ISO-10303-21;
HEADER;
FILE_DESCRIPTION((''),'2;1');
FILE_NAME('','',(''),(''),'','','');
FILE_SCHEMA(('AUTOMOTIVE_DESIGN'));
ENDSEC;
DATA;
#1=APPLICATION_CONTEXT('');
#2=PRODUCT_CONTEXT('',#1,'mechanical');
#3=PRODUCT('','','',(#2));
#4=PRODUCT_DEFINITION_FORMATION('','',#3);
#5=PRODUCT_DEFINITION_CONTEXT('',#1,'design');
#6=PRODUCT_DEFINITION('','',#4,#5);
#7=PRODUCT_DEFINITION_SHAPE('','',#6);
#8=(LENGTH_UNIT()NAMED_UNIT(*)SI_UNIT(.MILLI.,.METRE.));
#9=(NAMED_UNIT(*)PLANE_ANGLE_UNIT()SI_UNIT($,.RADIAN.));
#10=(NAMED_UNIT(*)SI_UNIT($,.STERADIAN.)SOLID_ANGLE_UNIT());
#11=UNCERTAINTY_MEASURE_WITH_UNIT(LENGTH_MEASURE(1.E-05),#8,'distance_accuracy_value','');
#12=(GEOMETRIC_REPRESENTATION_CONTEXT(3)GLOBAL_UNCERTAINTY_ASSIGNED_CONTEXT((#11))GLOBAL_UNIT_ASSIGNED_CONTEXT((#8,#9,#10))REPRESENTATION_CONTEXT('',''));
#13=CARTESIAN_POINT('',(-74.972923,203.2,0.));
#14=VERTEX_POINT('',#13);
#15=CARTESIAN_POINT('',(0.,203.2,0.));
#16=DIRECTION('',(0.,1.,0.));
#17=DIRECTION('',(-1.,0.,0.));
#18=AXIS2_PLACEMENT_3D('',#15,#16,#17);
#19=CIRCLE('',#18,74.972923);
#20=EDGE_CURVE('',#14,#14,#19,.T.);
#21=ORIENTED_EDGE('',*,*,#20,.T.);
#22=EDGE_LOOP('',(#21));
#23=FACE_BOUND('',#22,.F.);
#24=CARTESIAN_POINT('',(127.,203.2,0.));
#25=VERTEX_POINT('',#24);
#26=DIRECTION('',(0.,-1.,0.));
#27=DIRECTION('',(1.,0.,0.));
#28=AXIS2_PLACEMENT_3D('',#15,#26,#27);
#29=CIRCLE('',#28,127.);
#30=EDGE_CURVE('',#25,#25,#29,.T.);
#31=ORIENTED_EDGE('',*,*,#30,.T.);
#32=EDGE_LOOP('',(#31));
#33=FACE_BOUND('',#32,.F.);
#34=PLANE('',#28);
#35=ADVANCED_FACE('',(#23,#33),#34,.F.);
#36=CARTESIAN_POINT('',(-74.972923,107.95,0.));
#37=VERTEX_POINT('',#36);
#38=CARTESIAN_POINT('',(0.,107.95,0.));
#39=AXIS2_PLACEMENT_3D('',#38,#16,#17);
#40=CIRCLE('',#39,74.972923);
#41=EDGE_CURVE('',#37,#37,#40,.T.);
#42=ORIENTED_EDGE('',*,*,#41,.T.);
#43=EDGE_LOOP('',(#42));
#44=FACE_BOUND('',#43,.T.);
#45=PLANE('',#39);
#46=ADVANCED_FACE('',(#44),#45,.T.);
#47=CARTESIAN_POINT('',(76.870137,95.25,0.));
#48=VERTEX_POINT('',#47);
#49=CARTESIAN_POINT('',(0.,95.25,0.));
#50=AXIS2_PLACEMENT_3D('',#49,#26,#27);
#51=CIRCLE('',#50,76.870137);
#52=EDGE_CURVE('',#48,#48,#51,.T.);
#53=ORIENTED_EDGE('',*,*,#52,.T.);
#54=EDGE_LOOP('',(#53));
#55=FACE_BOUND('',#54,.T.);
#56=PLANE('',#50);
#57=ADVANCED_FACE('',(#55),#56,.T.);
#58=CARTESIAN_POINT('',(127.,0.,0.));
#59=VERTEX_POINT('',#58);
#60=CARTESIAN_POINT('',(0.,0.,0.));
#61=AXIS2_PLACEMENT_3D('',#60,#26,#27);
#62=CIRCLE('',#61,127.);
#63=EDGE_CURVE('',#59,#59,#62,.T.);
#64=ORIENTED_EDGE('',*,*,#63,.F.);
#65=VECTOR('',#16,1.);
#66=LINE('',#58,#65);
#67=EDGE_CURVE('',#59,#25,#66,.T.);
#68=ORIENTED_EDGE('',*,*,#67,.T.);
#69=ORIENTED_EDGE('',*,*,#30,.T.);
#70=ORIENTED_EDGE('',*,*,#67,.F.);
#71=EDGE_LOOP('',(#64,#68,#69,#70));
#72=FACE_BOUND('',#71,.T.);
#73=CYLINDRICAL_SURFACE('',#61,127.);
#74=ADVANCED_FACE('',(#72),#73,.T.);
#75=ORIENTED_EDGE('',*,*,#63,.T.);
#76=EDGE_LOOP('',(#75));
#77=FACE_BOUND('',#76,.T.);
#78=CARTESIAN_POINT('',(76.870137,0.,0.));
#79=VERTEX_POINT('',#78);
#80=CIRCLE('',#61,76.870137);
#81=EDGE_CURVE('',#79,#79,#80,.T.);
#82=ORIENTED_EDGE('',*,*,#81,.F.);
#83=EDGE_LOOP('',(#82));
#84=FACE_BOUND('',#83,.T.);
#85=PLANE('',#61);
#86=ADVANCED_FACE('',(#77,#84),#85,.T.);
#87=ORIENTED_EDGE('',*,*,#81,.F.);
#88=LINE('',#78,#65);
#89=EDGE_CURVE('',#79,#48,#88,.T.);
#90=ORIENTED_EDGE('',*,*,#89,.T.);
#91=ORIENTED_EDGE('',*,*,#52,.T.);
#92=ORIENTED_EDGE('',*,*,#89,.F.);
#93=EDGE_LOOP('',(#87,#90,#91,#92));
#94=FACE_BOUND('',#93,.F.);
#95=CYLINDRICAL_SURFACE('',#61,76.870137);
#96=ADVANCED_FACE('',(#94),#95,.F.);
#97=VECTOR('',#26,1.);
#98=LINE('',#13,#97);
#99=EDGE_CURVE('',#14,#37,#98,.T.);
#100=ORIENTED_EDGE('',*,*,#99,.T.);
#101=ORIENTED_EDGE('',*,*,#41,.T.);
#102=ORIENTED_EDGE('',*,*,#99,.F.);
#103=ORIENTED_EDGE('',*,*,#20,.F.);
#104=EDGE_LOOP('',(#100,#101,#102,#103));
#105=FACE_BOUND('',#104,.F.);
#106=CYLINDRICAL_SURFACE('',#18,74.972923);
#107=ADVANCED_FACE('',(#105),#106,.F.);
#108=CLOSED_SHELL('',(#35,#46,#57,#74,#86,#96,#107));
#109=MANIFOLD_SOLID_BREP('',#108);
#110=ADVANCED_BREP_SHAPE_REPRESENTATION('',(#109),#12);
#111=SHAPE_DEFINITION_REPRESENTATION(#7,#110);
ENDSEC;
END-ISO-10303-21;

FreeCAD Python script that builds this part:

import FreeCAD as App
import Part
import Sketcher

V = App.Vector
Q = App.Units.Quantity

doc = App.newDocument("Part")
params = doc.addObject("Spreadsheet::Sheet", "Params")
for row, (alias, value) in enumerate([
    ("sketch1_diameter", "10 in"),
    ("pad1_length", "8 in"),
    ("pocket1_length", "3.75 in"),
    ("pocket2_length", "3.75 in"),
], start=1):
    params.set(f"A{row}", alias)
    params.set(f"B{row}", "=" + value)
    params.setAlias(f"B{row}", alias)

body = doc.addObject("PartDesign::Body", "Body")

sketch1 = body.newObject("Sketcher::SketchObject", "Sketch")
sketch1.AttachmentSupport = (doc.getObject("XZ_Plane"), [""])
sketch1.MapMode = "FlatFace"
sketch1.addGeometry(Part.Circle(V(0, 0, 0), V(0, 0, 1), 127), False)
sketch1.addConstraint([
    Sketcher.Constraint("Coincident", 0, 3, -1, 1),
    Sketcher.Constraint("Diameter", 0, Q("10 in")),
])
sketch1.setExpression("Constraints[1]", "Params.sketch1_diameter")
pad1 = body.newObject("PartDesign::Pad", "Pad")
pad1.Profile = sketch1
pad1.setExpression("Length", "Params.pad1_length")
pad1.Reversed = True

sketch2 = body.newObject("Sketcher::SketchObject", "Sketch001")
sketch2.AttachmentSupport = (doc.getObject("XZ_Plane"), [""])
sketch2.MapMode = "FlatFace"
sketch2.addGeometry(Part.Circle(V(0, 0, 0), V(0, 0, 1), 76.870137), False)
sketch2.addConstraint([
    Sketcher.Constraint("Coincident", 0, 3, -1, 1),
    Sketcher.Constraint("Diameter", 0, 153.740274),
])
pocket1 = body.newObject("PartDesign::Pocket", "Pocket")
pocket1.Profile = sketch2
pocket1.setExpression("Length", "Params.pocket1_length")

sketch3 = body.newObject("Sketcher::SketchObject", "Sketch002")
sketch3.AttachmentSupport = (doc.getObject("XZ_Plane"), [""])
sketch3.MapMode = "FlatFace"
sketch3.AttachmentOffset = App.Placement(V(0, 0, -8 * 25.4), App.Rotation())
sketch3.addGeometry(Part.Circle(V(0, 0, 0), V(0, 0, 1), 74.972923), False)
sketch3.addConstraint([
    Sketcher.Constraint("Coincident", 0, 3, -1, 1),
    Sketcher.Constraint("Diameter", 0, 149.945846),
])
pocket2 = body.newObject("PartDesign::Pocket", "Pocket001")
pocket2.Profile = sketch3
pocket2.setExpression("Length", "Params.pocket2_length")
pocket2.Reversed = True

doc.recompute()
